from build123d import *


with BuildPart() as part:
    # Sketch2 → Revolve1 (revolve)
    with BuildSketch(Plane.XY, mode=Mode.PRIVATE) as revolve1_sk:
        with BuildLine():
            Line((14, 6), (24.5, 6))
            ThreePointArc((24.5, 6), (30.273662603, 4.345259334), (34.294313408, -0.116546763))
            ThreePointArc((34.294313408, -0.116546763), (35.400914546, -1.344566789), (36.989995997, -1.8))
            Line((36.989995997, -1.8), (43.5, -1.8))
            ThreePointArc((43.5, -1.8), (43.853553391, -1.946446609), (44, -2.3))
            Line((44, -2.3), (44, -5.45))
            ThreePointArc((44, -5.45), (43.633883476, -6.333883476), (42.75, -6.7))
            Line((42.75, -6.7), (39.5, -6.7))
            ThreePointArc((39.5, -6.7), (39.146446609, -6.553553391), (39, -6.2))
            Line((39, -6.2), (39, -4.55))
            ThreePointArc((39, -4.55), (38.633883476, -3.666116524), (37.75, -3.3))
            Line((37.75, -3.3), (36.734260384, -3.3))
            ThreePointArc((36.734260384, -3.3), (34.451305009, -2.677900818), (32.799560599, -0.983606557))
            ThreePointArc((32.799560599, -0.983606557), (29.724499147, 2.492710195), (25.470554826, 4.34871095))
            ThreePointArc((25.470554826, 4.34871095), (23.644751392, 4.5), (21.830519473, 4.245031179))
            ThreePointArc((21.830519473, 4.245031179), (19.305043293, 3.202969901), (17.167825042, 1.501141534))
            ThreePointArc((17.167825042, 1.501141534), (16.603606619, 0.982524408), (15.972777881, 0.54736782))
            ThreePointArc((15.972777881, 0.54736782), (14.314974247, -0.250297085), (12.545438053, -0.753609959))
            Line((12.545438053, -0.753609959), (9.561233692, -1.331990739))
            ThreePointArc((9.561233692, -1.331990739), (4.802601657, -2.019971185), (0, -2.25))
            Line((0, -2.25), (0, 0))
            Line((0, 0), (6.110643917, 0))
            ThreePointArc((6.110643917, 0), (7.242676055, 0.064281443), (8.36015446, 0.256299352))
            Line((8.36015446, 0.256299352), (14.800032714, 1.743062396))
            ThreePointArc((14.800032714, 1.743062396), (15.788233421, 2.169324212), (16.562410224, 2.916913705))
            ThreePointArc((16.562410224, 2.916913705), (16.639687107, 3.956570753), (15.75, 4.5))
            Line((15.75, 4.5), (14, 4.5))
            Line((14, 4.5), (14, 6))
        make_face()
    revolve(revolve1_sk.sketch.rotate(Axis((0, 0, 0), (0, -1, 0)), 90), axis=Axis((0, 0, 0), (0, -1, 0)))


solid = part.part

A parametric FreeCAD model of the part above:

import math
import FreeCAD as App
import Part
import Sketcher
from FreeCAD import Vector
Q = App.Units.Quantity

doc = App.newDocument("Part")
body = doc.addObject("PartDesign::Body", "Body")

# Sketch on XY plane
sketch1 = body.newObject("Sketcher::SketchObject", "Sketch")
sketch1.AttachmentSupport = (doc.getObject("XY_Plane"), [""])
sketch1.MapMode = "FlatFace"
sketch1.addGeometry([
    Part.LineSegment(Vector(24.5, 6, 0), Vector(14, 6, 0)),  # 0
    Part.LineSegment(Vector(14, 6, 0), Vector(14, 4.5, 0)),  # 1
    Part.LineSegment(Vector(14, 4.5, 0), Vector(15.75, 4.5, 0)),  # 2
    Part.ArcOfCircle(Part.Circle(Vector(15.75, 3.5, 0), Vector(0, 0, 1), 1), math.radians(-36), math.radians(90)),  # 3
    Part.ArcOfCircle(Part.Circle(Vector(14.13, 4.67, 0), Vector(0, 0, 1), 3), math.radians(-77), math.radians(-36)),  # 4
    Part.LineSegment(Vector(14.8, 1.74, 0), Vector(8.36, 0.26, 0)),  # 5
    Part.ArcOfCircle(Part.Circle(Vector(6.11, 10, 0), Vector(0, 0, 1), 10), math.radians(-90), math.radians(-77)),  # 6
    Part.LineSegment(Vector(6.11, 0, 0), Vector(0, 0, 0)),  # 7
    Part.LineSegment(Vector(0, 0, 0), Vector(0, -2.25, 0)),  # 8
    Part.ArcOfCircle(Part.Circle(Vector(0, 48, 0), Vector(0, 0, 1), 50.25), math.radians(-90), math.radians(-79.03)),  # 9
    Part.LineSegment(Vector(9.56, -1.33, 0), Vector(12.55, -0.75, 0)),  # 10
    Part.ArcOfCircle(Part.Circle(Vector(10.5, 9.8, 0), Vector(0, 0, 1), 10.75), math.radians(-79.03), math.radians(-59.4)),  # 11
    Part.ArcOfCircle(Part.Circle(Vector(13.17, 5.28, 0), Vector(0, 0, 1), 5.5), math.radians(-59.4), math.radians(-43.42)),  # 12
    Part.ArcOfCircle(Part.Circle(Vector(24.25, -5.2, 0), Vector(0, 0, 1), 9.75), math.radians(104), math.radians(137)),  # 13
    Part.ArcOfCircle(Part.Circle(Vector(23.88, -3.76, 0), Vector(0, 0, 1), 8.26), math.radians(79), math.radians(104)),  # 14
    Part.ArcOfCircle(Part.Circle(Vector(23.4, -6.2, 0), Vector(0, 0, 1), 10.75), math.radians(29), math.radians(79)),  # 15
    Part.ArcOfCircle(Part.Circle(Vector(36.73, 1.2, 0), Vector(0, 0, 1), 4.5), math.radians(-151), math.radians(-90)),  # 16
    Part.LineSegment(Vector(36.73, -3.3, 0), Vector(37.75, -3.3, 0)),  # 17
    Part.ArcOfCircle(Part.Circle(Vector(37.75, -4.55, 0), Vector(0, 0, 1), 1.25), math.radians(0), math.radians(90)),  # 18
    Part.LineSegment(Vector(39, -4.55, 0), Vector(39, -6.2, 0)),  # 19
    Part.ArcOfCircle(Part.Circle(Vector(39.5, -6.2, 0), Vector(0, 0, 1), 0.5), math.radians(180), math.radians(270)),  # 20
    Part.LineSegment(Vector(39.5, -6.7, 0), Vector(42.75, -6.7, 0)),  # 21
    Part.ArcOfCircle(Part.Circle(Vector(42.75, -5.45, 0), Vector(0, 0, 1), 1.25), math.radians(-90), math.radians(0)),  # 22
    Part.LineSegment(Vector(44, -5.45, 0), Vector(44, -2.3, 0)),  # 23
    Part.ArcOfCircle(Part.Circle(Vector(43.5, -2.3, 0), Vector(0, 0, 1), 0.5), math.radians(0), math.radians(90)),  # 24
    Part.LineSegment(Vector(43.5, -1.8, 0), Vector(36.99, -1.8, 0)),  # 25
    Part.ArcOfCircle(Part.Circle(Vector(36.99, 1.2, 0), Vector(0, 0, 1), 3), math.radians(-154), math.radians(-90)),  # 26
    Part.ArcOfCircle(Part.Circle(Vector(24.5, -4.9, 0), Vector(0, 0, 1), 10.9), math.radians(26), math.radians(90)),  # 27
], False)
sketch1.addConstraint([
    Sketcher.Constraint("Coincident", 0, 2, 1, 1),
    Sketcher.Constraint("Coincident", 1, 2, 2, 1),
    Sketcher.Constraint("Tangent", 2, 2, 3, 2),
    Sketcher.Constraint("Tangent", 3, 1, 4, 2),
    Sketcher.Constraint("Tangent", 4, 1, 5, 1),
    Sketcher.Constraint("Tangent", 5, 2, 6, 2),
    Sketcher.Constraint("Tangent", 6, 1, 7, 1),
    Sketcher.Constraint("Coincident", 7, 2, 8, 1),
    Sketcher.Constraint("Coincident", 8, 2, 9, 1),
    Sketcher.Constraint("Tangent", 9, 2, 10, 1),
    Sketcher.Constraint("Tangent", 10, 2, 11, 1),
    Sketcher.Constraint("Tangent", 11, 2, 12, 1),
    Sketcher.Constraint("Tangent", 12, 2, 13, 2),
    Sketcher.Constraint("Tangent", 13, 1, 14, 2),
    Sketcher.Constraint("Tangent", 14, 1, 15, 2),
    Sketcher.Constraint("Tangent", 15, 1, 16, 1),
    Sketcher.Constraint("Tangent", 16, 2, 17, 1),
    Sketcher.Constraint("Tangent", 17, 2, 18, 2),
    Sketcher.Constraint("Tangent", 18, 1, 19, 1),
    Sketcher.Constraint("Tangent", 19, 2, 20, 1),
    Sketcher.Constraint("Tangent", 20, 2, 21, 1),
    Sketcher.Constraint("Tangent", 21, 2, 22, 1),
    Sketcher.Constraint("Tangent", 22, 2, 23, 1),
    Sketcher.Constraint("Tangent", 23, 2, 24, 1),
    Sketcher.Constraint("Tangent", 24, 2, 25, 1),
    Sketcher.Constraint("Tangent", 25, 2, 26, 2),
    Sketcher.Constraint("Tangent", 26, 1, 27, 1),
    Sketcher.Constraint("Tangent", 27, 2, 0, 1),
    Sketcher.Constraint("Horizontal", 0),
    Sketcher.Constraint("Vertical", 1),
    Sketcher.Constraint("Horizontal", 2),
    Sketcher.Constraint("Horizontal", 7),
    Sketcher.Constraint("Vertical", 8),
    Sketcher.Constraint("Horizontal", 17),
    Sketcher.Constraint("Vertical", 19),
    Sketcher.Constraint("Horizontal", 21),
    Sketcher.Constraint("Vertical", 23),
    Sketcher.Constraint("Horizontal", 25),
    Sketcher.Constraint("Coincident", 7, 2, -1, 1),
    Sketcher.Constraint("Equal", 11, 15),
    Sketcher.Constraint("Equal", 18, 22),
    Sketcher.Constraint("Equal", 20, 24),
    Sketcher.Constraint("Equal", 4, 26),
    Sketcher.Constraint("PointOnObject", 9, 3, -2),
    Sketcher.Constraint("Horizontal", 15, 3, 20, 3),
    Sketcher.Constraint("Horizontal", 16, 3, 26, 3),
    Sketcher.Constraint("Radius", 3, 1.0),
    Sketcher.Constraint("Radius", 4, 3.0),
    Sketcher.Constraint("Radius", 6, 10.0),
    Sketcher.Constraint("Radius", 12, 5.5),
    Sketcher.Constraint("Radius", 16, 4.5),
    Sketcher.Constraint("Radius", 20, 0.5),
    Sketcher.Constraint("Radius", 27, 10.9),
    Sketcher.Constraint("Angle", 5, Q("-167 deg")),
    Sketcher.Constraint("Radius", 9, 50.25),
    Sketcher.Constraint("Radius", 11, 10.75),
    Sketcher.Constraint("Radius", 13, 9.75),
    Sketcher.Constraint("Radius", 18, 1.25),
    Sketcher.Constraint("DistanceX", 0, 2, 0, 1, 10.5),
    Sketcher.Constraint("DistanceY", 1, 2, 1, 1, 1.5),
    Sketcher.Constraint("DistanceY", -1, 1, 9, 3, 48.0),
    Sketcher.Constraint("DistanceX", -1, 1, 0, 2, 14.0),
    Sketcher.Constraint("DistanceY", -1, 1, 0, 2, 6.0),
    Sketcher.Constraint("DistanceX", -1, 1, 18, 1, 39.0),
    Sketcher.Constraint("DistanceX", -1, 1, 22, 2, 44.0),
    Sketcher.Constraint("DistanceY", 13, 3, 11, 3, 15.0),
    Sketcher.Constraint("DistanceY", 15, 3, 13, 3, 1.0),
    Sketcher.Constraint("DistanceX", 3, 3, 18, 3, 22.0),
    Sketcher.Constraint("DistanceY", 19, 2, 19, 1, 1.65),
    Sketcher.Constraint("DistanceX", -1, 1, 11, 3, 10.5),
    Sketcher.Constraint("DistanceY", -1, 1, 11, 3, 9.8),
    Sketcher.Constraint("DistanceX", -1, 1, 15, 3, 23.4),
    Sketcher.Constraint("DistanceX", 3, 3, 13, 3, 8.5),
    Sketcher.Constraint("Radius", 14, 8.258513),
    Sketcher.Constraint("DistanceY", 4, 3, 12, 3, 0.6151),
])
revolution = body.newObject("PartDesign::Revolution", "Revolution")
revolution.Profile = sketch1
revolution.ReferenceAxis = (sketch1, ["V_Axis"])
revolution.Angle = 360

doc.recompute()
